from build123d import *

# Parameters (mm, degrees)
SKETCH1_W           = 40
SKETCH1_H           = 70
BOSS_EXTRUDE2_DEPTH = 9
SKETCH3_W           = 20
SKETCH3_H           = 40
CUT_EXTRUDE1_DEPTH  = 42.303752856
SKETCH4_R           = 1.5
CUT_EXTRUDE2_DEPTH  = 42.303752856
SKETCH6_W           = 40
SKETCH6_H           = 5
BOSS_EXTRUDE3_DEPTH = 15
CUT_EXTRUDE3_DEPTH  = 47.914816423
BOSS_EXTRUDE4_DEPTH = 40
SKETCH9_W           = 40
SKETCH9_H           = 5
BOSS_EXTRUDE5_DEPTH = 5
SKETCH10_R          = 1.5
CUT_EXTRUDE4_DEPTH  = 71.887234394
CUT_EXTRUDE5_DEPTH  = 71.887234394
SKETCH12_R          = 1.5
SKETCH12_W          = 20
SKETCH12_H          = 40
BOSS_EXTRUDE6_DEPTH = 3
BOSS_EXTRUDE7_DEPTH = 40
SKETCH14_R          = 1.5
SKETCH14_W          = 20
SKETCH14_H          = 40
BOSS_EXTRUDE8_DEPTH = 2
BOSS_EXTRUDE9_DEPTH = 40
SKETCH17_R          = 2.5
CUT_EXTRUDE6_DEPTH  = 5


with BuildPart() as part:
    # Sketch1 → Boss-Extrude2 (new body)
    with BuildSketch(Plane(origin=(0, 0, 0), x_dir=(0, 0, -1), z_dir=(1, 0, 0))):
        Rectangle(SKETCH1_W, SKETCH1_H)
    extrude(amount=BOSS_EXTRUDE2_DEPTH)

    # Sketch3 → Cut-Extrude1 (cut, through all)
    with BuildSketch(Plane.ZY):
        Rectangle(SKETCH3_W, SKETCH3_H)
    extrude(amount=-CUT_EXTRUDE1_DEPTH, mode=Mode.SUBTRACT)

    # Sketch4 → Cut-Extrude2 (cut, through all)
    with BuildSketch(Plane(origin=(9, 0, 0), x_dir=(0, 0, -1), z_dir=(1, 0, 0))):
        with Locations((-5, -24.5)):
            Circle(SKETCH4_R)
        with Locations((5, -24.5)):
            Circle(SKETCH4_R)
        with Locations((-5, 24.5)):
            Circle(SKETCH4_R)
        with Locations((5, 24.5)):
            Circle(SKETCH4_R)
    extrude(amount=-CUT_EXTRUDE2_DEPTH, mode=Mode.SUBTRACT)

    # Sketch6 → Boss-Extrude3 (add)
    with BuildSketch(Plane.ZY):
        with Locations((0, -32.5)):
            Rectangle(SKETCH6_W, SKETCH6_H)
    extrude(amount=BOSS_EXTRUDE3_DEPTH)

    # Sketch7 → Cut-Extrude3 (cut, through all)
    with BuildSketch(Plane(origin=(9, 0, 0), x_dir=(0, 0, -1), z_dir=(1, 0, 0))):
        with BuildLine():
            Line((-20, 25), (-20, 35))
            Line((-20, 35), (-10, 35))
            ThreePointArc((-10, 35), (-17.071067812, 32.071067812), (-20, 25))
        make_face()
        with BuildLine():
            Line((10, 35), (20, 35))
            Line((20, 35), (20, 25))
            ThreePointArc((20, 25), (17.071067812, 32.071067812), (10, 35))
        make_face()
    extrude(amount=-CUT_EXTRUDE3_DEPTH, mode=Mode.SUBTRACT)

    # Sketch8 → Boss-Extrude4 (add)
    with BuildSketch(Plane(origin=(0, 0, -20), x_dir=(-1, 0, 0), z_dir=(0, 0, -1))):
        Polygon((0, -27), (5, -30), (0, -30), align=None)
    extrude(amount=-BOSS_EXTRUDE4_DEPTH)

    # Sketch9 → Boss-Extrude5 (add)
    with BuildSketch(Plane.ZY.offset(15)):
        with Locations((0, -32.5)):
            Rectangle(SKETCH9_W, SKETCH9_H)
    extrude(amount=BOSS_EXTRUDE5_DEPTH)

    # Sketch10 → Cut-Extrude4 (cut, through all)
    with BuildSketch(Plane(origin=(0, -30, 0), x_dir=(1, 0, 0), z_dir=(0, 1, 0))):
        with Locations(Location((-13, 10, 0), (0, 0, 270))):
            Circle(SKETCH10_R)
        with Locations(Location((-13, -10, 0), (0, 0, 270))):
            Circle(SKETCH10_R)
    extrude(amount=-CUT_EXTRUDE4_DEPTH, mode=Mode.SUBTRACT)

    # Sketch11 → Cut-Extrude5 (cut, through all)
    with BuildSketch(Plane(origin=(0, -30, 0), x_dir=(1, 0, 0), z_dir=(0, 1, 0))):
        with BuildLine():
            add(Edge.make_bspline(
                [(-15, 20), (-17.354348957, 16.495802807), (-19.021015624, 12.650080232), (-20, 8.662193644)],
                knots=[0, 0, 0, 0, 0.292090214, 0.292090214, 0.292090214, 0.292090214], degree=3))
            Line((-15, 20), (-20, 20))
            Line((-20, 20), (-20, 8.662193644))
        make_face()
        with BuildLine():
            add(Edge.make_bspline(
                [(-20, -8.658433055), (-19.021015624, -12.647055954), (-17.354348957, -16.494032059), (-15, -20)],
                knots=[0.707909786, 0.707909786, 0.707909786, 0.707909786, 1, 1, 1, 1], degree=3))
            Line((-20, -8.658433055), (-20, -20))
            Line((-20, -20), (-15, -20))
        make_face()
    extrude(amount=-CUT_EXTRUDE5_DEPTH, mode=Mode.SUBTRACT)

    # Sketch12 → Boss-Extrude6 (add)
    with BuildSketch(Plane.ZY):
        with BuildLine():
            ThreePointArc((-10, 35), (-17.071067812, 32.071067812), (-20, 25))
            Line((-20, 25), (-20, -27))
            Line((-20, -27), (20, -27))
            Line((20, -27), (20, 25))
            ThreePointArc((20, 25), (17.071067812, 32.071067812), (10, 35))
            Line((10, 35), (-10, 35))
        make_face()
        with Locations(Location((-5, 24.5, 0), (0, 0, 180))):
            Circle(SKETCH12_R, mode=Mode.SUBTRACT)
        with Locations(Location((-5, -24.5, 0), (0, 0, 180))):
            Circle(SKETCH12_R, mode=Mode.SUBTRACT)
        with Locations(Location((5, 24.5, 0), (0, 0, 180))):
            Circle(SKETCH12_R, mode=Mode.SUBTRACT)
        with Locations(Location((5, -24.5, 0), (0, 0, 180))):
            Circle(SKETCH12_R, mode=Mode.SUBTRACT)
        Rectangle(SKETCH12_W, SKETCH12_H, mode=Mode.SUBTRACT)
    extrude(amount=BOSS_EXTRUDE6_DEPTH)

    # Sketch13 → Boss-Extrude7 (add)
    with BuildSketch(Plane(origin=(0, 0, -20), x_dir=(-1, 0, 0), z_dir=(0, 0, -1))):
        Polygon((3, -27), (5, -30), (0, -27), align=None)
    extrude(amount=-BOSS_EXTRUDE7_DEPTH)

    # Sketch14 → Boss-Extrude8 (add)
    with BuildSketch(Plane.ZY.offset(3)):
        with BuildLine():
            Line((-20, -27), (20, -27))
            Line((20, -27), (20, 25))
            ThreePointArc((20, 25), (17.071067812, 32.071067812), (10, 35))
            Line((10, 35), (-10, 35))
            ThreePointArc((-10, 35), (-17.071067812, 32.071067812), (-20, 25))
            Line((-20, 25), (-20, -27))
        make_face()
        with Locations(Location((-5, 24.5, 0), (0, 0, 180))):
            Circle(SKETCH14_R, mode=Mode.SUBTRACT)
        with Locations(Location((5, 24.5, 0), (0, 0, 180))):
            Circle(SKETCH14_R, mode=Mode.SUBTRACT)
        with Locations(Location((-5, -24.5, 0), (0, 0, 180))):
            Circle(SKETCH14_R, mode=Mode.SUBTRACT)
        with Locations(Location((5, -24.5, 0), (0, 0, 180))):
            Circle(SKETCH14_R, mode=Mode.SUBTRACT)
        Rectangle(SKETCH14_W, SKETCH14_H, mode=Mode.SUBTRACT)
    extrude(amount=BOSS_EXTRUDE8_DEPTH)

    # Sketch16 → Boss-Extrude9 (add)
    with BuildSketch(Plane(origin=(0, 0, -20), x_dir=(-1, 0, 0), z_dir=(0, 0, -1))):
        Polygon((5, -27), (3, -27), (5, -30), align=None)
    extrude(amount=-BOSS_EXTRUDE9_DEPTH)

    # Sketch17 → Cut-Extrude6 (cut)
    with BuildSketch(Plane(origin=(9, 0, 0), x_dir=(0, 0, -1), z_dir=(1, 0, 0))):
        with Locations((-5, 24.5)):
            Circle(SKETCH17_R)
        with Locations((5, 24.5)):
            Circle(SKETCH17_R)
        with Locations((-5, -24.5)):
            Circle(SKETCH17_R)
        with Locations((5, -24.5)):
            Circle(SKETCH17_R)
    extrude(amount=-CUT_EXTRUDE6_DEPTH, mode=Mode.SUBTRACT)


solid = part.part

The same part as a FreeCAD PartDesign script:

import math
import FreeCAD as App
import Part
import Sketcher
from FreeCAD import Vector
Q = App.Units.Quantity


def add_polygon(sketch, points):
    """Adds a closed chain of lines whose ends are joined by coincident constraints."""
    first, n = sketch.GeometryCount, len(points)
    for a, b in zip(points, points[1:] + points[:1]):
        sketch.addGeometry(Part.LineSegment(App.Vector(*a, 0), App.Vector(*b, 0)), False)
    for i in range(n):
        sketch.addConstraint(Sketcher.Constraint("Coincident", first + i, 2, first + (i + 1) % n, 1))

doc = App.newDocument("Part")
body = doc.addObject("PartDesign::Body", "Body")

# Sketch on YZ plane
sketch1 = body.newObject("Sketcher::SketchObject", "Sketch")
sketch1.AttachmentSupport = (doc.getObject("YZ_Plane"), [""])
sketch1.MapMode = "FlatFace"
add_polygon(sketch1, [(35, 20), (-35, 20), (-35, -20), (35, -20)])  # lines 0-3
sketch1.addConstraint([
    Sketcher.Constraint("Horizontal", 0),
    Sketcher.Constraint("Vertical", 1),
    Sketcher.Constraint("Horizontal", 2),
    Sketcher.Constraint("Vertical", 3),
    Sketcher.Constraint("Symmetric", 0, 2, 2, 2, -1, 1),
    Sketcher.Constraint("DistanceX", 0, 2, 0, 1, Q("70 mm")),
    Sketcher.Constraint("DistanceY", 1, 2, 1, 1, Q("40 mm")),
])
pad1 = body.newObject("PartDesign::Pad", "Pad")
pad1.Profile = sketch1
pad1.Length = 9

# Sketch on YZ plane
sketch2 = body.newObject("Sketcher::SketchObject", "Sketch001")
sketch2.AttachmentSupport = (doc.getObject("YZ_Plane"), [""])
sketch2.MapMode = "FlatFace"
add_polygon(sketch2, [(20, -10), (-20, -10), (-20, 10), (20, 10)])  # lines 0-3
sketch2.addConstraint([
    Sketcher.Constraint("Horizontal", 0),
    Sketcher.Constraint("Vertical", 1),
    Sketcher.Constraint("Horizontal", 2),
    Sketcher.Constraint("Vertical", 3),
    Sketcher.Constraint("Symmetric", 0, 2, 2, 2, -1, 1),
    Sketcher.Constraint("DistanceX", 0, 2, 0, 1, Q("40 mm")),
    Sketcher.Constraint("DistanceY", 1, 1, 1, 2, Q("20 mm")),
])
pocket1 = body.newObject("PartDesign::Pocket", "Pocket")
pocket1.Profile = sketch2
pocket1.Type = "ThroughAll"
pocket1.Reversed = True

# Sketch on YZ plane
sketch3 = body.newObject("Sketcher::SketchObject", "Sketch002")
sketch3.AttachmentSupport = (doc.getObject("YZ_Plane"), [""])
sketch3.MapMode = "FlatFace"
sketch3.AttachmentOffset = App.Placement(Vector(0, 0, 9), App.Rotation())
sketch3.addGeometry([
    Part.Circle(Vector(-24.5, 5, 0), Vector(0, 0, 1), 1.5),
    Part.Circle(Vector(-24.5, -5, 0), Vector(0, 0, 1), 1.5),
    Part.Circle(Vector(24.5, 5, 0), Vector(0, 0, 1), 1.5),
    Part.Circle(Vector(24.5, -5, 0), Vector(0, 0, 1), 1.5),
], False)
sketch3.addConstraint([
    Sketcher.Constraint("Equal", 0, 1),
    Sketcher.Constraint("Equal", 1, 2),
    Sketcher.Constraint("Equal", 2, 3),
    Sketcher.Constraint("Symmetric", 1, 3, 2, 3, -1, 1),
    Sketcher.Constraint("Symmetric", 0, 3, 3, 3, -1, 1),
    Sketcher.Constraint("Symmetric", 0, 3, 2, 3, -2),
    Sketcher.Constraint("Diameter", 0, Q("3 mm")),
    Sketcher.Constraint("DistanceY", -1, 1, 0, 3, Q("5 mm")),
    Sketcher.Constraint("DistanceX", 0, 3, 2, 3, Q("49 mm")),
])
pocket2 = body.newObject("PartDesign::Pocket", "Pocket001")
pocket2.Profile = sketch3
pocket2.Type = "ThroughAll"

# Sketch on YZ plane
sketch4 = body.newObject("Sketcher::SketchObject", "Sketch003")
sketch4.AttachmentSupport = (doc.getObject("YZ_Plane"), [""])
sketch4.MapMode = "FlatFace"
add_polygon(sketch4, [(-30, -20), (-35, -20), (-35, 20), (-30, 20)])  # lines 0-3
sketch4.addConstraint([
    Sketcher.Constraint("Horizontal", 0),
    Sketcher.Constraint("Vertical", 1),
    Sketcher.Constraint("Horizontal", 2),
    Sketcher.Constraint("Vertical", 3),
    Sketcher.Constraint("DistanceX", 0, 2, 0, 1, Q("5 mm")),
    Sketcher.Constraint("DistanceY", 1, 1, 1, 2, Q("40 mm")),
    Sketcher.Constraint("DistanceX", 0, 2, -1, 1, Q("35 mm")),
    Sketcher.Constraint("DistanceY", 0, 2, -1, 1, Q("20 mm")),
])
pad2 = body.newObject("PartDesign::Pad", "Pad001")
pad2.Profile = sketch4
pad2.Length = 15
pad2.Reversed = True

# Sketch on YZ plane
sketch5 = body.newObject("Sketcher::SketchObject", "Sketch004")
sketch5.AttachmentSupport = (doc.getObject("YZ_Plane"), [""])
sketch5.MapMode = "FlatFace"
sketch5.AttachmentOffset = App.Placement(Vector(0, 0, 9), App.Rotation())
sketch5.addGeometry([
    Part.LineSegment(Vector(35, 20, 0), Vector(25, 20, 0)),  # 0
    Part.ArcOfCircle(Part.Circle(Vector(25, 10, 0), Vector(0, 0, 1), 10), math.radians(0), math.radians(90)),  # 1
    Part.LineSegment(Vector(35, 10, 0), Vector(35, 20, 0)),  # 2
    Part.LineSegment(Vector(35, -20, 0), Vector(35, -10, 0)),  # 3
    Part.ArcOfCircle(Part.Circle(Vector(25, -10, 0), Vector(0, 0, 1), 10), math.radians(-90), math.radians(0)),  # 4
    Part.LineSegment(Vector(25, -20, 0), Vector(35, -20, 0)),  # 5
], False)
sketch5.addConstraint([
    Sketcher.Constraint("Tangent", 0, 2, 1, 2),
    Sketcher.Constraint("Tangent", 1, 1, 2, 1),
    Sketcher.Constraint("Coincident", 2, 2, 0, 1),
    Sketcher.Constraint("Tangent", 3, 2, 4, 2),
    Sketcher.Constraint("Tangent", 4, 1, 5, 1),
    Sketcher.Constraint("Coincident", 5, 2, 3, 1),
    Sketcher.Constraint("Horizontal", 0),
    Sketcher.Constraint("Vertical", 2),
    Sketcher.Constraint("Vertical", 3),
    Sketcher.Constraint("Horizontal", 5),
    Sketcher.Constraint("Equal", 1, 4),
    Sketcher.Constraint("Symmetric", 1, 3, 4, 3, -1),
    Sketcher.Constraint("Radius", 1, Q("10 mm")),
    Sketcher.Constraint("DistanceX", -1, 1, 1, 3, Q("25 mm")),
    Sketcher.Constraint("DistanceY", -1, 1, 1, 3, Q("10 mm")),
])
pocket3 = body.newObject("PartDesign::Pocket", "Pocket002")
pocket3.Profile = sketch5
pocket3.Type = "ThroughAll"

# Sketch on XY plane
sketch6 = body.newObject("Sketcher::SketchObject", "Sketch005")
sketch6.AttachmentSupport = (doc.getObject("XY_Plane"), [""])
sketch6.MapMode = "FlatFace"
sketch6.AttachmentOffset = App.Placement(Vector(0, 0, -20), App.Rotation())
add_polygon(sketch6, [(-5, -30), (0, -27), (0, -30)])  # lines 0-2
sketch6.addConstraint([
    Sketcher.Constraint("Vertical", 1),
    Sketcher.Constraint("Horizontal", 2),
    Sketcher.Constraint("PointOnObject", 0, 2, -2),
    Sketcher.Constraint("DistanceX", 2, 2, 2, 1, Q("5 mm")),
    Sketcher.Constraint("DistanceY", 1, 2, 1, 1, Q("3 mm")),
    Sketcher.Constraint("DistanceY", 0, 2, -1, 1, Q("27 mm")),
])
pad3 = body.newObject("PartDesign::Pad", "Pad002")
pad3.Profile = sketch6
pad3.Length = 40

# Sketch on YZ plane
sketch7 = body.newObject("Sketcher::SketchObject", "Sketch006")
sketch7.AttachmentSupport = (doc.getObject("YZ_Plane"), [""])
sketch7.MapMode = "FlatFace"
sketch7.AttachmentOffset = App.Placement(Vector(0, 0, -15), App.Rotation())
add_polygon(sketch7, [(-30, -20), (-35, -20), (-35, 20), (-30, 20)])  # lines 0-3
sketch7.addConstraint([
    Sketcher.Constraint("Horizontal", 0),
    Sketcher.Constraint("Vertical", 1),
    Sketcher.Constraint("Horizontal", 2),
    Sketcher.Constraint("Vertical", 3),
    Sketcher.Constraint("DistanceX", 0, 2, 0, 1, Q("5 mm")),
    Sketcher.Constraint("DistanceY", 1, 1, 1, 2, Q("40 mm")),
    Sketcher.Constraint("DistanceX", 0, 2, -1, 1, Q("35 mm")),
    Sketcher.Constraint("DistanceY", 0, 2, -1, 1, Q("20 mm")),
])
pad4 = body.newObject("PartDesign::Pad", "Pad003")
pad4.Profile = sketch7
pad4.Length = 5
pad4.Reversed = True

# Sketch on XZ plane
sketch8 = body.newObject("Sketcher::SketchObject", "Sketch007")
sketch8.AttachmentSupport = (doc.getObject("XZ_Plane"), [""])
sketch8.MapMode = "FlatFace"
sketch8.AttachmentOffset = App.Placement(Vector(0, 0, 30), App.Rotation())
sketch8.addGeometry([
    Part.Circle(Vector(-13, -10, 0), Vector(0, 0, 1), 1.5),
    Part.Circle(Vector(-13, 10, 0), Vector(0, 0, 1), 1.5),
], False)
sketch8.addConstraint([
    Sketcher.Constraint("Equal", 0, 1),
    Sketcher.Constraint("Symmetric", 0, 3, 1, 3, -1),
    Sketcher.Constraint("Diameter", 0, Q("3 mm")),
    Sketcher.Constraint("DistanceX", 0, 3, -1, 1, Q("13 mm")),
    Sketcher.Constraint("DistanceY", 0, 3, -1, 1, Q("10 mm")),
])
pocket4 = body.newObject("PartDesign::Pocket", "Pocket003")
pocket4.Profile = sketch8
pocket4.Type = "ThroughAll"
pocket4.Reversed = True

# Sketch on XZ plane
sketch9 = body.newObject("Sketcher::SketchObject", "Sketch008")
sketch9.AttachmentSupport = (doc.getObject("XZ_Plane"), [""])
sketch9.MapMode = "FlatFace"
sketch9.AttachmentOffset = App.Placement(Vector(0, 0, 30), App.Rotation())
sketch9.addGeometry([
    Part.BSplineCurve([Vector(-15, -20, 0), Vector(-17.354349, -16.495803, 0), Vector(-19.021016, -12.65008, 0), Vector(-20, -8.662194, 0)], [4, 4], [0, 0.292090214], False, 3, [1, 1, 1, 1], False),  # 0
    Part.LineSegment(Vector(-15, -20, 0), Vector(-20, -20, 0)),  # 1
    Part.LineSegment(Vector(-20, -20, 0), Vector(-20, -8.662194, 0)),  # 2
    Part.BSplineCurve([Vector(-20, 8.658433, 0), Vector(-19.021016, 12.647056, 0), Vector(-17.354349, 16.494032, 0), Vector(-15, 20, 0)], [4, 4], [0.707909786, 1], False, 3, [1, 1, 1, 1], False),  # 3
    Part.LineSegment(Vector(-20, 8.658433, 0), Vector(-20, 20, 0)),  # 4
    Part.LineSegment(Vector(-20, 20, 0), Vector(-15, 20, 0)),  # 5
], False)
sketch9.addConstraint([
    Sketcher.Constraint("Block", 0),
    Sketcher.Constraint("Block", 3),
    Sketcher.Constraint("Coincident", 0, 1, 1, 1),
    Sketcher.Constraint("Coincident", 1, 2, 2, 1),
    Sketcher.Constraint("Coincident", 2, 2, 0, 2),
    Sketcher.Constraint("Coincident", 3, 1, 4, 1),
    Sketcher.Constraint("Coincident", 4, 2, 5, 1),
    Sketcher.Constraint("Coincident", 5, 2, 3, 2),
    Sketcher.Constraint("Horizontal", 1),
    Sketcher.Constraint("Vertical", 2),
    Sketcher.Constraint("Vertical", 4),
    Sketcher.Constraint("Horizontal", 5),
])
pocket5 = body.newObject("PartDesign::Pocket", "Pocket004")
pocket5.Profile = sketch9
pocket5.Type = "ThroughAll"
pocket5.Reversed = True

# Sketch on YZ plane
sketch10 = body.newObject("Sketcher::SketchObject", "Sketch009")
sketch10.AttachmentSupport = (doc.getObject("YZ_Plane"), [""])
sketch10.MapMode = "FlatFace"
sketch10.addGeometry(Part.ArcOfCircle(Part.Circle(Vector(25, -10, 0), Vector(0, 0, 1), 10), math.radians(-90), math.radians(0)), False)  # 0
sketch10.addGeometry(Part.LineSegment(Vector(25, -20, 0), Vector(-27, -20, 0)), False)  # 1
sketch10.addGeometry(Part.LineSegment(Vector(-27, -20, 0), Vector(-27, 20, 0)), False)  # 2
sketch10.addGeometry(Part.LineSegment(Vector(-27, 20, 0), Vector(25, 20, 0)), False)  # 3
sketch10.addGeometry(Part.ArcOfCircle(Part.Circle(Vector(25, 10, 0), Vector(0, 0, 1), 10), math.radians(0), math.radians(90)), False)  # 4
sketch10.addGeometry(Part.LineSegment(Vector(35, 10, 0), Vector(35, -10, 0)), False)  # 5
sketch10.addGeometry(Part.Circle(Vector(-24.5, -5, 0), Vector(0, 0, 1), 1.5), False)  # 6
sketch10.addGeometry(Part.Circle(Vector(-24.5, 5, 0), Vector(0, 0, 1), 1.5), False)  # 7
sketch10.addGeometry(Part.Circle(Vector(24.5, -5, 0), Vector(0, 0, 1), 1.5), False)  # 8
add_polygon(sketch10, [(-20, 10), (-20, -10), (20, -10), (20, 10)])  # lines 9-12
sketch10.addGeometry(Part.Circle(Vector(24.5, 5, 0), Vector(0, 0, 1), 1.5), False)  # 13
sketch10.addConstraint([
    Sketcher.Constraint("Tangent", 0, 1, 1, 1),
    Sketcher.Constraint("Coincident", 1, 2, 2, 1),
    Sketcher.Constraint("Coincident", 2, 2, 3, 1),
    Sketcher.Constraint("Tangent", 3, 2, 4, 2),
    Sketcher.Constraint("Tangent", 4, 1, 5, 1),
    Sketcher.Constraint("Tangent", 5, 2, 0, 2),
    Sketcher.Constraint("Horizontal", 1),
    Sketcher.Constraint("Vertical", 2),
    Sketcher.Constraint("Horizontal", 3),
    Sketcher.Constraint("Vertical", 5),
    Sketcher.Constraint("Vertical", 9),
    Sketcher.Constraint("Horizontal", 10),
    Sketcher.Constraint("Vertical", 11),
    Sketcher.Constraint("Horizontal", 12),
    Sketcher.Constraint("Equal", 0, 4),
    Sketcher.Constraint("Equal", 6, 7),
    Sketcher.Constraint("Equal", 7, 8),
    Sketcher.Constraint("Equal", 8, 13),
    Sketcher.Constraint("Symmetric", 7, 3, 8, 3, -1, 1),
    Sketcher.Constraint("Symmetric", 6, 3, 13, 3, -1, 1),
    Sketcher.Constraint("Symmetric", 9, 2, 11, 2, -1, 1),
    Sketcher.Constraint("Symmetric", 6, 3, 8, 3, -2),
    Sketcher.Constraint("Horizontal", 5, 2, 9, 2),
    Sketcher.Constraint("Horizontal", 4, 1, 11, 2),
    Sketcher.Constraint("Equal", 12, 2),
    Sketcher.Constraint("Diameter", 6, Q("3 mm")),
    Sketcher.Constraint("Radius", 0, Q("10 mm")),
    Sketcher.Constraint("DistanceX", 1, 2, 1, 1, Q("52 mm")),
    Sketcher.Constraint("DistanceX", 10, 1, 10, 2, Q("40 mm")),
    Sketcher.Constraint("DistanceX", -1, 1, 0, 3, Q("25 mm")),
    Sketcher.Constraint("DistanceY", 6, 3, -1, 1, Q("5 mm")),
    Sketcher.Constraint("DistanceX", 6, 3, 8, 3, Q("49 mm")),
])
pad5 = body.newObject("PartDesign::Pad", "Pad004")
pad5.Profile = sketch10
pad5.Length = 3
pad5.Reversed = True

# Sketch on XY plane
sketch11 = body.newObject("Sketcher::SketchObject", "Sketch010")
sketch11.AttachmentSupport = (doc.getObject("XY_Plane"), [""])
sketch11.MapMode = "FlatFace"
sketch11.AttachmentOffset = App.Placement(Vector(0, 0, -20), App.Rotation())
add_polygon(sketch11, [(-5, -30), (-3, -27), (0, -27)])  # lines 0-2
sketch11.addConstraint([
    Sketcher.Constraint("Horizontal", 1),
    Sketcher.Constraint("PointOnObject", 1, 2, -2),
    Sketcher.Constraint("DistanceX", 1, 1, 1, 2, Q("3 mm")),
    Sketcher.Constraint("DistanceY", 0, 2, -1, 1, Q("27 mm")),
    Sketcher.Constraint("DistanceX", 2, 2, -1, 1, Q("5 mm")),
    Sketcher.Constraint("DistanceY", 2, 2, -1, 1, Q("30 mm")),
])
pad6 = body.newObject("PartDesign::Pad", "Pad005")
pad6.Profile = sketch11
pad6.Length = 40

# Sketch on YZ plane
sketch12 = body.newObject("Sketcher::SketchObject", "Sketch011")
sketch12.AttachmentSupport = (doc.getObject("YZ_Plane"), [""])
sketch12.MapMode = "FlatFace"
sketch12.AttachmentOffset = App.Placement(Vector(0, 0, -3), App.Rotation())
sketch12.addGeometry(Part.LineSegment(Vector(-27, -20, 0), Vector(-27, 20, 0)), False)  # 0
sketch12.addGeometry(Part.LineSegment(Vector(-27, 20, 0), Vector(25, 20, 0)), False)  # 1
sketch12.addGeometry(Part.ArcOfCircle(Part.Circle(Vector(25, 10, 0), Vector(0, 0, 1), 10), math.radians(0), math.radians(90)), False)  # 2
sketch12.addGeometry(Part.LineSegment(Vector(35, 10, 0), Vector(35, -10, 0)), False)  # 3
sketch12.addGeometry(Part.ArcOfCircle(Part.Circle(Vector(25, -10, 0), Vector(0, 0, 1), 10), math.radians(-90), math.radians(0)), False)  # 4
sketch12.addGeometry(Part.LineSegment(Vector(25, -20, 0), Vector(-27, -20, 0)), False)  # 5
sketch12.addGeometry(Part.Circle(Vector(-24.5, -5, 0), Vector(0, 0, 1), 1.5), False)  # 6
sketch12.addGeometry(Part.Circle(Vector(-24.5, 5, 0), Vector(0, 0, 1), 1.5), False)  # 7
sketch12.addGeometry(Part.Circle(Vector(24.5, -5, 0), Vector(0, 0, 1), 1.5), False)  # 8
add_polygon(sketch12, [(-20, 10), (-20, -10), (20, -10), (20, 10)])  # lines 9-12
sketch12.addGeometry(Part.Circle(Vector(24.5, 5, 0), Vector(0, 0, 1), 1.5), False)  # 13
sketch12.addConstraint([
    Sketcher.Constraint("Coincident", 0, 2, 1, 1),
    Sketcher.Constraint("Tangent", 1, 2, 2, 2),
    Sketcher.Constraint("Tangent", 2, 1, 3, 1),
    Sketcher.Constraint("Tangent", 3, 2, 4, 2),
    Sketcher.Constraint("Tangent", 4, 1, 5, 1),
    Sketcher.Constraint("Coincident", 5, 2, 0, 1),
    Sketcher.Constraint("Vertical", 0),
    Sketcher.Constraint("Horizontal", 1),
    Sketcher.Constraint("Vertical", 3),
    Sketcher.Constraint("Horizontal", 5),
    Sketcher.Constraint("Vertical", 9),
    Sketcher.Constraint("Horizontal", 10),
    Sketcher.Constraint("Vertical", 11),
    Sketcher.Constraint("Horizontal", 12),
    Sketcher.Constraint("Equal", 2, 4),
    Sketcher.Constraint("Equal", 6, 7),
    Sketcher.Constraint("Equal", 7, 8),
    Sketcher.Constraint("Equal", 8, 13),
    Sketcher.Constraint("Symmetric", 7, 3, 8, 3, -1, 1),
    Sketcher.Constraint("Symmetric", 6, 3, 13, 3, -1, 1),
    Sketcher.Constraint("Symmetric", 9, 2, 11, 2, -1, 1),
    Sketcher.Constraint("Symmetric", 6, 3, 8, 3, -2),
    Sketcher.Constraint("Horizontal", 3, 2, 9, 2),
    Sketcher.Constraint("Horizontal", 2, 1, 11, 2),
    Sketcher.Constraint("Equal", 12, 0),
    Sketcher.Constraint("Diameter", 6, Q("3 mm")),
    Sketcher.Constraint("Radius", 2, Q("10 mm")),
    Sketcher.Constraint("DistanceX", 1, 1, 1, 2, Q("52 mm")),
    Sketcher.Constraint("DistanceX", 10, 1, 10, 2, Q("40 mm")),
    Sketcher.Constraint("DistanceX", -1, 1, 2, 3, Q("25 mm")),
    Sketcher.Constraint("DistanceY", 6, 3, -1, 1, Q("5 mm")),
    Sketcher.Constraint("DistanceX", 6, 3, 8, 3, Q("49 mm")),
])
pad7 = body.newObject("PartDesign::Pad", "Pad006")
pad7.Profile = sketch12
pad7.Length = 2
pad7.Reversed = True

# Sketch on XY plane
sketch13 = body.newObject("Sketcher::SketchObject", "Sketch012")
sketch13.AttachmentSupport = (doc.getObject("XY_Plane"), [""])
sketch13.MapMode = "FlatFace"
sketch13.AttachmentOffset = App.Placement(Vector(0, 0, -20), App.Rotation())
add_polygon(sketch13, [(-5, -27), (-3, -27), (-5, -30)])  # lines 0-2
sketch13.addConstraint([
    Sketcher.Constraint("Horizontal", 0),
    Sketcher.Constraint("Vertical", 2),
    Sketcher.Constraint("DistanceX", 0, 1, 0, 2, Q("2 mm")),
    Sketcher.Constraint("DistanceY", 2, 1, 2, 2, Q("3 mm")),
    Sketcher.Constraint("DistanceX", 0, 2, -1, 1, Q("3 mm")),
    Sketcher.Constraint("DistanceY", 0, 2, -1, 1, Q("27 mm")),
])
pad8 = body.newObject("PartDesign::Pad", "Pad007")
pad8.Profile = sketch13
pad8.Length = 40

# Sketch on YZ plane
sketch14 = body.newObject("Sketcher::SketchObject", "Sketch013")
sketch14.AttachmentSupport = (doc.getObject("YZ_Plane"), [""])
sketch14.MapMode = "FlatFace"
sketch14.AttachmentOffset = App.Placement(Vector(0, 0, 9), App.Rotation())
sketch14.addGeometry([
    Part.Circle(Vector(24.5, 5, 0), Vector(0, 0, 1), 2.5),
    Part.Circle(Vector(24.5, -5, 0), Vector(0, 0, 1), 2.5),
    Part.Circle(Vector(-24.5, 5, 0), Vector(0, 0, 1), 2.5),
    Part.Circle(Vector(-24.5, -5, 0), Vector(0, 0, 1), 2.5),
], False)
sketch14.addConstraint([
    Sketcher.Constraint("Equal", 0, 1),
    Sketcher.Constraint("Equal", 1, 2),
    Sketcher.Constraint("Equal", 2, 3),
    Sketcher.Constraint("Symmetric", 1, 3, 2, 3, -1, 1),
    Sketcher.Constraint("Symmetric", 0, 3, 3, 3, -1, 1),
    Sketcher.Constraint("Symmetric", 0, 3, 2, 3, -2),
    Sketcher.Constraint("Diameter", 0, Q("5 mm")),
    Sketcher.Constraint("DistanceY", -1, 1, 0, 3, Q("5 mm")),
    Sketcher.Constraint("DistanceX", 2, 3, 0, 3, Q("49 mm")),
])
pocket6 = body.newObject("PartDesign::Pocket", "Pocket005")
pocket6.Profile = sketch14
pocket6.Length = 5

doc.recompute()
